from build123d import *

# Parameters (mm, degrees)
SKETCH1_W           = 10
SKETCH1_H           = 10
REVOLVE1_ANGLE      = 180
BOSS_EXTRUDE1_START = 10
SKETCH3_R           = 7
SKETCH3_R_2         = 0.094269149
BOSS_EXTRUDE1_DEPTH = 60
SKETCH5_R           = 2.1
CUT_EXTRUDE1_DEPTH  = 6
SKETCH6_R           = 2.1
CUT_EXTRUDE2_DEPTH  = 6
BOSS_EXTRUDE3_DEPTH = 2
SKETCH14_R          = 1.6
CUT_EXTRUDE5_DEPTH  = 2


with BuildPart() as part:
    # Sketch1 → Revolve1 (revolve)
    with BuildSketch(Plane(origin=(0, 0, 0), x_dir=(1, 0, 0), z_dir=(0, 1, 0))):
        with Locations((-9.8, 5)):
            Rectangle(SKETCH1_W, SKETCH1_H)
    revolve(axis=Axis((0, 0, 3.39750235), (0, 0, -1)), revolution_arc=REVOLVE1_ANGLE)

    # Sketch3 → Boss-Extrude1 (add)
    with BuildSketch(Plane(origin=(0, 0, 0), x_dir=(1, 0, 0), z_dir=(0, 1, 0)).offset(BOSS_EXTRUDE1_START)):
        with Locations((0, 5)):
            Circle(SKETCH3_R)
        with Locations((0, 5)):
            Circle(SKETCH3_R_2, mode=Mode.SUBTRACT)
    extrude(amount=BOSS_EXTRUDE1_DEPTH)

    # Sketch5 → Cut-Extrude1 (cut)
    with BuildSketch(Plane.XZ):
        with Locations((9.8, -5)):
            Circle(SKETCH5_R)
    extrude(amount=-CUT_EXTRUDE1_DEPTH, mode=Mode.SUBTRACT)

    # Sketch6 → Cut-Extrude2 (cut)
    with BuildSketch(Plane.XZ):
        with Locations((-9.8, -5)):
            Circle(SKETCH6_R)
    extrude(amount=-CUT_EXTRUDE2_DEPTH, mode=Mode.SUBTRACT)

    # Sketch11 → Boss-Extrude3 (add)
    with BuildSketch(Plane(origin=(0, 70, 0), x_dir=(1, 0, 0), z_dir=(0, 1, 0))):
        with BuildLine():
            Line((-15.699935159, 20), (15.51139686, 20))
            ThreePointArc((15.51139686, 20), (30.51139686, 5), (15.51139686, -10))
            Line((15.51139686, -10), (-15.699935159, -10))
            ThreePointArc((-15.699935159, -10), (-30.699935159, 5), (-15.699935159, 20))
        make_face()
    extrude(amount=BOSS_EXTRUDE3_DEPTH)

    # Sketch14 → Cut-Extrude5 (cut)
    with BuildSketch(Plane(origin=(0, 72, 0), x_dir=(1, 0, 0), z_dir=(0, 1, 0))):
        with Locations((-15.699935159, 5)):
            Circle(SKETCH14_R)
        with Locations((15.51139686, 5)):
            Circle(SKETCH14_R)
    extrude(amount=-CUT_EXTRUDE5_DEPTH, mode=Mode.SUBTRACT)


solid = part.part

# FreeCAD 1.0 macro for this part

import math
import FreeCAD as App
import Part
import Sketcher
from FreeCAD import Vector
Q = App.Units.Quantity

doc = App.newDocument("Part")
params = doc.addObject("Spreadsheet::Sheet", "Params")
for row, (alias, value) in enumerate([
    ("sketch1_width", "10 mm"),
    ("revolution_angle", "180 deg"),
    ("sketch2_diameter", "14 mm"),
    ("pad1_length", "60 mm"),
    ("sketch3_diameter", "4.2 mm"),
    ("pocket1_length", "6 mm"),
    ("sketch4_diameter", "4.2 mm"),
    ("pocket2_length", "6 mm"),
    ("sketch5_radius", "15 mm"),
    ("pad2_length", "2 mm"),
    ("sketch6_diameter", "3.2 mm"),
    ("pocket3_length", "2 mm"),
], start=1):
    params.set(f"A{row}", alias)
    params.set(f"B{row}", "=" + value)
    params.setAlias(f"B{row}", alias)

body = doc.addObject("PartDesign::Body", "Body")

# Sketch on XZ plane
sketch1 = body.newObject("Sketcher::SketchObject", "Sketch")
sketch1.AttachmentSupport = (doc.getObject("XZ_Plane"), [""])
sketch1.MapMode = "FlatFace"
sketch1.addGeometry([
    Part.LineSegment(Vector(-15, -10, 0), Vector(-15, 0, 0)),
    Part.LineSegment(Vector(-15, 0, 0), Vector(-5, 0, 0)),
    Part.LineSegment(Vector(-5, 0, 0), Vector(-5, -10, 0)),
    Part.LineSegment(Vector(-5, -10, 0), Vector(-15, -10, 0)),
], False)
sketch1.addConstraint([
    Sketcher.Constraint("Coincident", 0, 2, 1, 1),
    Sketcher.Constraint("Coincident", 1, 2, 2, 1),
    Sketcher.Constraint("Coincident", 2, 2, 3, 1),
    Sketcher.Constraint("Coincident", 3, 2, 0, 1),
    Sketcher.Constraint("Vertical", 0),
    Sketcher.Constraint("Horizontal", 1),
    Sketcher.Constraint("Vertical", 2),
    Sketcher.Constraint("Horizontal", 3),
    Sketcher.Constraint("PointOnObject", 0, 2, -1),
    Sketcher.Constraint("Equal", 3, 0),
    Sketcher.Constraint("DistanceX", 1, 1, 1, 2, Q("10 mm")),
    Sketcher.Constraint("DistanceX", 0, 2, -1, 1, Q("14.8 mm")),
])
sketch1.setExpression("Constraints[10]", "Params.sketch1_width")
revolution = body.newObject("PartDesign::Revolution", "Revolution")
revolution.Profile = sketch1
revolution.ReferenceAxis = (sketch1, ["V_Axis"])
revolution.setExpression("Angle", "Params.revolution_angle")
revolution.Reversed = True

# Sketch on XZ plane
sketch2 = body.newObject("Sketcher::SketchObject", "Sketch001")
sketch2.AttachmentSupport = (doc.getObject("XZ_Plane"), [""])
sketch2.MapMode = "FlatFace"
sketch2.AttachmentOffset = App.Placement(Vector(0, 0, -10), App.Rotation())
sketch2.addGeometry([
    Part.Circle(Vector(0, -5, 0), Vector(0, 0, 1), 7),
    Part.Circle(Vector(0, -5, 0), Vector(0, 0, 1), 0.09),
], False)
sketch2.addConstraint([
    Sketcher.Constraint("Coincident", 1, 3, 0, 3),
    Sketcher.Constraint("PointOnObject", 0, 3, -2),
    Sketcher.Constraint("Diameter", 0, Q("14 mm")),
    Sketcher.Constraint("DistanceY", 0, 3, -1, 1, Q("5 mm")),
    Sketcher.Constraint("Diameter", 1, Q("0.188538 mm")),
])
sketch2.setExpression("Constraints[2]", "Params.sketch2_diameter")
pad1 = body.newObject("PartDesign::Pad", "Pad")
pad1.Profile = sketch2
pad1.setExpression("Length", "Params.pad1_length")
pad1.Reversed = True

# Sketch on XZ plane
sketch3 = body.newObject("Sketcher::SketchObject", "Sketch002")
sketch3.AttachmentSupport = (doc.getObject("XZ_Plane"), [""])
sketch3.MapMode = "FlatFace"
sketch3.addGeometry(Part.Circle(Vector(9.8, -5, 0), Vector(0, 0, 1), 2.1), False)
sketch3.addConstraint([
    Sketcher.Constraint("Diameter", 0, Q("4.2 mm")),
    Sketcher.Constraint("DistanceY", 0, 3, -1, 1, Q("5 mm")),
    Sketcher.Constraint("DistanceX", -1, 1, 0, 3, Q("9.8 mm")),
])
sketch3.setExpression("Constraints[0]", "Params.sketch3_diameter")
pocket1 = body.newObject("PartDesign::Pocket", "Pocket")
pocket1.Profile = sketch3
pocket1.setExpression("Length", "Params.pocket1_length")

# Sketch on XZ plane
sketch4 = body.newObject("Sketcher::SketchObject", "Sketch003")
sketch4.AttachmentSupport = (doc.getObject("XZ_Plane"), [""])
sketch4.MapMode = "FlatFace"
sketch4.addGeometry(Part.Circle(Vector(-9.8, -5, 0), Vector(0, 0, 1), 2.1), False)
sketch4.addConstraint([
    Sketcher.Constraint("Diameter", 0, Q("4.2 mm")),
    Sketcher.Constraint("DistanceY", 0, 3, -1, 1, Q("5 mm")),
    Sketcher.Constraint("DistanceX", 0, 3, -1, 1, Q("9.8 mm")),
])
sketch4.setExpression("Constraints[0]", "Params.sketch4_diameter")
pocket2 = body.newObject("PartDesign::Pocket", "Pocket001")
pocket2.Profile = sketch4
pocket2.setExpression("Length", "Params.pocket2_length")

# Sketch on XZ plane
sketch5 = body.newObject("Sketcher::SketchObject", "Sketch004")
sketch5.AttachmentSupport = (doc.getObject("XZ_Plane"), [""])
sketch5.MapMode = "FlatFace"
sketch5.AttachmentOffset = App.Placement(Vector(0, 0, -70), App.Rotation())
sketch5.addGeometry([
    Part.LineSegment(Vector(16, -20, 0), Vector(-16, -20, 0)),
    Part.ArcOfCircle(Part.Circle(Vector(-16, -5, 0), Vector(0, 0, 1), 15), math.radians(90), math.radians(270)),
    Part.LineSegment(Vector(-16, 10, 0), Vector(16, 10, 0)),
    Part.ArcOfCircle(Part.Circle(Vector(16, -5, 0), Vector(0, 0, 1), 15), math.radians(-90), math.radians(90)),
], False)
sketch5.addConstraint([
    Sketcher.Constraint("Tangent", 0, 2, 1, 2),
    Sketcher.Constraint("Tangent", 1, 1, 2, 1),
    Sketcher.Constraint("Tangent", 2, 2, 3, 2),
    Sketcher.Constraint("Tangent", 3, 1, 0, 1),
    Sketcher.Constraint("Horizontal", 0),
    Sketcher.Constraint("Horizontal", 2),
    Sketcher.Constraint("Radius", 1, Q("15 mm")),
    Sketcher.Constraint("DistanceY", 1, 3, -1, 1, Q("5 mm")),
    Sketcher.Constraint("DistanceX", 0, 2, 0, 1, Q("31.211332 mm")),
    Sketcher.Constraint("DistanceX", 1, 3, -1, 1, Q("15.699935 mm")),
])
sketch5.setExpression("Constraints[6]", "Params.sketch5_radius")
pad2 = body.newObject("PartDesign::Pad", "Pad001")
pad2.Profile = sketch5
pad2.setExpression("Length", "Params.pad2_length")
pad2.Reversed = True

# Sketch on XZ plane
sketch6 = body.newObject("Sketcher::SketchObject", "Sketch005")
sketch6.AttachmentSupport = (doc.getObject("XZ_Plane"), [""])
sketch6.MapMode = "FlatFace"
sketch6.AttachmentOffset = App.Placement(Vector(0, 0, -72), App.Rotation())
sketch6.addGeometry([
    Part.Circle(Vector(-15.7, -5, 0), Vector(0, 0, 1), 1.6),
    Part.Circle(Vector(15.5, -5, 0), Vector(0, 0, 1), 1.6),
], False)
sketch6.addConstraint([
    Sketcher.Constraint("Equal", 0, 1),
    Sketcher.Constraint("Horizontal", 0, 3, 1, 3),
    Sketcher.Constraint("Diameter", 0, Q("3.2 mm")),
    Sketcher.Constraint("DistanceY", 0, 3, -1, 1, Q("5 mm")),
    Sketcher.Constraint("DistanceX", 0, 3, -1, 1, Q("15.699935 mm")),
    Sketcher.Constraint("DistanceX", -1, 1, 1, 3, Q("15.511397 mm")),
])
sketch6.setExpression("Constraints[2]", "Params.sketch6_diameter")
pocket3 = body.newObject("PartDesign::Pocket", "Pocket002")
pocket3.Profile = sketch6
pocket3.setExpression("Length", "Params.pocket3_length")
pocket3.Reversed = True

doc.recompute()
